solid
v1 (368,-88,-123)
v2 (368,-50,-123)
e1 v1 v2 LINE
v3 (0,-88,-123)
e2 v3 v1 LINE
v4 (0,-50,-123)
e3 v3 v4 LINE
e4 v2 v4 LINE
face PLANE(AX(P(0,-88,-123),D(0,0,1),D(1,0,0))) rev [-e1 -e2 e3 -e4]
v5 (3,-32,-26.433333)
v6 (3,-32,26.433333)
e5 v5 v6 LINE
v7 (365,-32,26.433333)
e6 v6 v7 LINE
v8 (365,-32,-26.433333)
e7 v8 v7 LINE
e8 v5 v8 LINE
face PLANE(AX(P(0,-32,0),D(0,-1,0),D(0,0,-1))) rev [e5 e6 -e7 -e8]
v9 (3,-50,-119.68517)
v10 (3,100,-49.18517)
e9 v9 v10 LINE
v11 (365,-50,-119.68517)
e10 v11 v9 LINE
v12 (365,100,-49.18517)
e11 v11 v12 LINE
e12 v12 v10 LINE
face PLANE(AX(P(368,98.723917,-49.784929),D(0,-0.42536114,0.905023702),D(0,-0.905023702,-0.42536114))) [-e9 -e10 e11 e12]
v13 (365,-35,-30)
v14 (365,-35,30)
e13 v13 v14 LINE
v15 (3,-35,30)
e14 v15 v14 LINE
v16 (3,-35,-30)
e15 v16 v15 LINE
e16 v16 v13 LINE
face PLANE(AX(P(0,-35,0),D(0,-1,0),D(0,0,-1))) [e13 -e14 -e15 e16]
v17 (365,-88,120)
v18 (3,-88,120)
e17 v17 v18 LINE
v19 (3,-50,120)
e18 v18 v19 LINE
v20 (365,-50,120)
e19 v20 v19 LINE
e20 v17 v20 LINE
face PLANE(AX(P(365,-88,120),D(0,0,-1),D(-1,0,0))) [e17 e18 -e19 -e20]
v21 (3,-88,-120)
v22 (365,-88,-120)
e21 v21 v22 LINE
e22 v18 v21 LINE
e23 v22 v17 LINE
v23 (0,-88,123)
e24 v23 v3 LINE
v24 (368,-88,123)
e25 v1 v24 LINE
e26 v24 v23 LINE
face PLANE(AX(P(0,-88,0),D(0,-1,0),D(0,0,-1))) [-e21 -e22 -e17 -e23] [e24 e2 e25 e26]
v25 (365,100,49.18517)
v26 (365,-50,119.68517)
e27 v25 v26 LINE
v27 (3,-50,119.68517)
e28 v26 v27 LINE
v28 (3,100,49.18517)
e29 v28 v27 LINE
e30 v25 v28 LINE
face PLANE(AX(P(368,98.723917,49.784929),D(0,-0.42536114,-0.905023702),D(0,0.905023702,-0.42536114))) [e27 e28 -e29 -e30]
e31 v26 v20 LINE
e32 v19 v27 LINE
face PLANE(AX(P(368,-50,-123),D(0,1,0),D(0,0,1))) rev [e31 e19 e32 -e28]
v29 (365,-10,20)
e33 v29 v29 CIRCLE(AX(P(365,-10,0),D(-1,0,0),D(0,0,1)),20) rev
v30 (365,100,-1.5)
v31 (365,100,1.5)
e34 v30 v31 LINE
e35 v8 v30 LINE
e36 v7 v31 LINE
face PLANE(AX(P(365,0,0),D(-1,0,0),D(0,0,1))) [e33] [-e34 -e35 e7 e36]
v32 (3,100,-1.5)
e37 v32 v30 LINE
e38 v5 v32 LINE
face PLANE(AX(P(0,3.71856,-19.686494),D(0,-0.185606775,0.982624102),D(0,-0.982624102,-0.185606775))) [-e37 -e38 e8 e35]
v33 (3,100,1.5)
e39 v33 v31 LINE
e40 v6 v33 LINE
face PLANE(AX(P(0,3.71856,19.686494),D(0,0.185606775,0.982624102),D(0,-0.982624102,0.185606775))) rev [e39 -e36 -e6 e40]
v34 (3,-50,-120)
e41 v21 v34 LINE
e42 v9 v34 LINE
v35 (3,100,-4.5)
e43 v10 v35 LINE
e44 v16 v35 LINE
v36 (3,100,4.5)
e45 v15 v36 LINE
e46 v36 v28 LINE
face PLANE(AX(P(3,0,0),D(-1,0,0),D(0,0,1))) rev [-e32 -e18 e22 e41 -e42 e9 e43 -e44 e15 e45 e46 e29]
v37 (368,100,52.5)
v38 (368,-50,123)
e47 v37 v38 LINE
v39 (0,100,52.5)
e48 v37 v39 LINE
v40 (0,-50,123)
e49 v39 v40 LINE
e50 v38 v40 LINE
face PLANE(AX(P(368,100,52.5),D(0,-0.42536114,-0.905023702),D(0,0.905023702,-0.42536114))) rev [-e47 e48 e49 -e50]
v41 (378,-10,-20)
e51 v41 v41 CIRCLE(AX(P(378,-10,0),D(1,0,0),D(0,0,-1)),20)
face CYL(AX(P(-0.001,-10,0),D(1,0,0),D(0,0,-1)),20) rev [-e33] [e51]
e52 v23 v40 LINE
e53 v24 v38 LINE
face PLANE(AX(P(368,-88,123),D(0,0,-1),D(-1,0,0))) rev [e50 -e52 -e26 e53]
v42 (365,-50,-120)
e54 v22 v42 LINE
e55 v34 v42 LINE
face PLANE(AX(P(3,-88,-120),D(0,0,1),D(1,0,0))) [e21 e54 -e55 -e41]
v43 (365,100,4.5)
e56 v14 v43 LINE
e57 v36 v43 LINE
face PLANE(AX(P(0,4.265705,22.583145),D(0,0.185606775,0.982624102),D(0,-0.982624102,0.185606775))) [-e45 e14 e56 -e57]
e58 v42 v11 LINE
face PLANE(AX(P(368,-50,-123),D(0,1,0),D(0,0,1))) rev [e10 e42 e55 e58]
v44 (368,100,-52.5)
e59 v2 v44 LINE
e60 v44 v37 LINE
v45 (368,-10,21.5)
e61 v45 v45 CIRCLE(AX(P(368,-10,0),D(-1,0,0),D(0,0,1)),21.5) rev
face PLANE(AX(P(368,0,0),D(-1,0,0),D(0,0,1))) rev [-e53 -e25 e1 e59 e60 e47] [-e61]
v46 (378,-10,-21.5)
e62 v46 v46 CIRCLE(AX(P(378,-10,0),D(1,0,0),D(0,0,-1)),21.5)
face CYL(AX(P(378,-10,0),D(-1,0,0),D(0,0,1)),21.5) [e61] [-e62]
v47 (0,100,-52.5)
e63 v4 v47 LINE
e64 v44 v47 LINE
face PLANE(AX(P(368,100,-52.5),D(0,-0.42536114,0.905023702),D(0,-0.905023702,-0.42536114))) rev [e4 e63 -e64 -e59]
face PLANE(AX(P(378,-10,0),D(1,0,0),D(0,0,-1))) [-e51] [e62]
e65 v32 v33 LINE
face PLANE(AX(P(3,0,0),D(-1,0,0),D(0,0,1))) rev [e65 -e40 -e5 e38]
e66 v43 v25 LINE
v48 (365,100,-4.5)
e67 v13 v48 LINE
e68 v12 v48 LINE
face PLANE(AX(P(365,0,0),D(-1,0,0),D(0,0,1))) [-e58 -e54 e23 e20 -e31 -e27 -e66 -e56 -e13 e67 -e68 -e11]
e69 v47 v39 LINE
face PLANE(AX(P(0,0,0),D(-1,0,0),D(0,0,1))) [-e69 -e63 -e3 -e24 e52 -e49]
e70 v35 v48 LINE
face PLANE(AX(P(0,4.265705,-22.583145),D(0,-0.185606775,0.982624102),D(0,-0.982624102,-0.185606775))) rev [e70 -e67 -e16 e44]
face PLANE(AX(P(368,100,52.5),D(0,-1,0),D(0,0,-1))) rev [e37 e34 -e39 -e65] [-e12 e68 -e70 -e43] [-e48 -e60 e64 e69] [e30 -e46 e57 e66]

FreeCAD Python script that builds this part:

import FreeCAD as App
import Part
import Sketcher
from FreeCAD import Vector
Q = App.Units.Quantity


def faces_at(feature, points):
    """Names of the faces that lie closest to the given points."""
    faces = feature.Shape.Faces
    near = lambda p: min(range(len(faces)), key=lambda i: faces[i].distToShape(Part.Vertex(*p))[0])
    return sorted({f"Face{near(p) + 1}" for p in points})

doc = App.newDocument("Part")
body = doc.addObject("PartDesign::Body", "Body")

sketch1 = body.newObject("Sketcher::SketchObject", "Sketch")
sketch1.AttachmentSupport = (doc.getObject("YZ_Plane"), [""])
sketch1.MapMode = "FlatFace"
sketch1.addGeometry(Part.LineSegment(Vector(-50, 123, 0), Vector(-50, -123, 0)), False)
sketch1.addGeometry(Part.LineSegment(Vector(-50, -123, 0), Vector(100, -52, 0)), False)
sketch1.addGeometry(Part.LineSegment(Vector(100, -52, 0), Vector(100, 52, 0)), False)
sketch1.addGeometry(Part.LineSegment(Vector(100, 52, 0), Vector(-50, 123, 0)), False)
sketch1.addConstraint(Sketcher.Constraint("Coincident", 0, 2, 1, 1))
sketch1.addConstraint(Sketcher.Constraint("Coincident", 1, 2, 2, 1))
sketch1.addConstraint(Sketcher.Constraint("Coincident", 2, 2, 3, 1))
sketch1.addConstraint(Sketcher.Constraint("Coincident", 3, 2, 0, 1))
sketch1.addConstraint(Sketcher.Constraint("Vertical", 0))
sketch1.addConstraint(Sketcher.Constraint("Vertical", 2))
sketch1.addConstraint(Sketcher.Constraint("Equal", 1, 3))
sketch1.addConstraint(Sketcher.Constraint("DistanceY", 0, 2, 0, 1, Q("246 mm")))
sketch1.addConstraint(Sketcher.Constraint("DistanceY", 2, 1, 2, 2, Q("105 mm")))
sketch1.addConstraint(Sketcher.Constraint("DistanceX", 0, 2, -1, 1, Q("50 mm")))
sketch1.addConstraint(Sketcher.Constraint("DistanceY", 0, 2, -1, 1, Q("123 mm")))
sketch1.addConstraint(Sketcher.Constraint("DistanceX", -1, 1, 1, 2, Q("100 mm")))
pad1 = body.newObject("PartDesign::Pad", "Pad")
pad1.Profile = sketch1
pad1.Length = 368
doc.recompute()

thickness = body.newObject("PartDesign::Thickness", "Thickness")
thickness.Base = (pad1, faces_at(pad1, [(184, 100, 0), (184, -50, 0)]))
thickness.Value = 3
thickness.Reversed = True
thickness.Join = "Intersection"

sketch2 = body.newObject("Sketcher::SketchObject", "Sketch001")
sketch2.AttachmentSupport = (doc.getObject("YZ_Plane"), [""])
sketch2.MapMode = "FlatFace"
sketch2.AttachmentOffset = App.Placement(Vector(0, 0, 368), App.Rotation())
sketch2.addGeometry(Part.LineSegment(Vector(100, 4.5, 0), Vector(-35, 30, 0)), False)
sketch2.addGeometry(Part.LineSegment(Vector(-35, 30, 0), Vector(-35, -30, 0)), False)
sketch2.addGeometry(Part.LineSegment(Vector(-35, -30, 0), Vector(100, -4.5, 0)), False)
sketch2.addGeometry(Part.LineSegment(Vector(100, -4.5, 0), Vector(100, -1.5, 0)), False)
sketch2.addGeometry(Part.LineSegment(Vector(100, -1.5, 0), Vector(-32, -26.4, 0)), False)
sketch2.addGeometry(Part.LineSegment(Vector(-32, -26.4, 0), Vector(-32, 26.4, 0)), False)
sketch2.addGeometry(Part.LineSegment(Vector(-32, 26.4, 0), Vector(100, 1.5, 0)), False)
sketch2.addGeometry(Part.LineSegment(Vector(100, 1.5, 0), Vector(100, 4.5, 0)), False)
sketch2.addConstraint(Sketcher.Constraint("Coincident", 0, 2, 1, 1))
sketch2.addConstraint(Sketcher.Constraint("Coincident", 1, 2, 2, 1))
sketch2.addConstraint(Sketcher.Constraint("Coincident", 2, 2, 3, 1))
sketch2.addConstraint(Sketcher.Constraint("Coincident", 3, 2, 4, 1))
sketch2.addConstraint(Sketcher.Constraint("Coincident", 4, 2, 5, 1))
sketch2.addConstraint(Sketcher.Constraint("Coincident", 5, 2, 6, 1))
sketch2.addConstraint(Sketcher.Constraint("Coincident", 6, 2, 7, 1))
sketch2.addConstraint(Sketcher.Constraint("Coincident", 7, 2, 0, 1))
sketch2.addConstraint(Sketcher.Constraint("Vertical", 1))
sketch2.addConstraint(Sketcher.Constraint("Vertical", 3))
sketch2.addConstraint(Sketcher.Constraint("Vertical", 5))
sketch2.addConstraint(Sketcher.Constraint("Vertical", 7))
sketch2.addConstraint(Sketcher.Constraint("Symmetric", 3, 2, 6, 2, -1))
sketch2.addConstraint(Sketcher.Constraint("Parallel", 2, 4))
sketch2.addConstraint(Sketcher.Constraint("Parallel", 0, 6))
sketch2.addConstraint(Sketcher.Constraint("Equal", 3, 7))
sketch2.addConstraint(Sketcher.Constraint("Equal", 0, 2))
sketch2.addConstraint(Sketcher.Constraint("DistanceY", 1, 2, 1, 1, Q("60 mm")))
sketch2.addConstraint(Sketcher.Constraint("DistanceY", 3, 1, 3, 2, Q("3 mm")))
sketch2.addConstraint(Sketcher.Constraint("DistanceX", 0, 2, -1, 1, Q("35 mm")))
sketch2.addConstraint(Sketcher.Constraint("DistanceX", -1, 1, 2, 2, Q("100 mm")))
sketch2.addConstraint(Sketcher.Constraint("DistanceX", 4, 2, -1, 1, Q("32 mm")))
sketch2.addConstraint(Sketcher.Constraint("DistanceY", 3, 2, 6, 2, Q("3 mm")))
pad2 = body.newObject("PartDesign::Pad", "Pad001")
pad2.Profile = sketch2
pad2.Length = 365
pad2.Reversed = True

sketch3 = body.newObject("Sketcher::SketchObject", "Sketch002")
sketch3.AttachmentSupport = (doc.getObject("YZ_Plane"), [""])
sketch3.MapMode = "FlatFace"
sketch3.AttachmentOffset = App.Placement(Vector(0, 0, 368), App.Rotation())
sketch3.addGeometry(Part.Circle(Vector(-10, 0, 0), Vector(0, 0, 1), 20), False)
sketch3.addConstraint(Sketcher.Constraint("PointOnObject", 0, 3, -1))
sketch3.addConstraint(Sketcher.Constraint("Diameter", 0, Q("40 mm")))
sketch3.addConstraint(Sketcher.Constraint("DistanceX", 0, 3, -1, 1, Q("10 mm")))
pocket1 = body.newObject("PartDesign::Pocket", "Pocket")
pocket1.Profile = sketch3
pocket1.Type = "UpToFirst"

sketch4 = body.newObject("Sketcher::SketchObject", "Sketch003")
sketch4.AttachmentSupport = (doc.getObject("YZ_Plane"), [""])
sketch4.MapMode = "FlatFace"
sketch4.AttachmentOffset = App.Placement(Vector(0, 0, 378), App.Rotation())
sketch4.addGeometry(Part.Circle(Vector(-10, 0, 0), Vector(0, 0, 1), 22), False)
sketch4.addGeometry(Part.Circle(Vector(-10, 0, 0), Vector(0, 0, 1), 20), False)
sketch4.addConstraint(Sketcher.Constraint("Coincident", 1, 3, 0, 3))
sketch4.addConstraint(Sketcher.Constraint("PointOnObject", 0, 3, -1))
sketch4.addConstraint(Sketcher.Constraint("Diameter", 0, Q("43 mm")))
sketch4.addConstraint(Sketcher.Constraint("Diameter", 1, Q("40 mm")))
sketch4.addConstraint(Sketcher.Constraint("DistanceX", 0, 3, -1, 1, Q("10 mm")))
pad3 = body.newObject("PartDesign::Pad", "Pad002")
pad3.Profile = sketch4
pad3.Length = 10
pad3.Reversed = True

sketch5 = body.newObject("Sketcher::SketchObject", "Sketch004")
sketch5.AttachmentSupport = (doc.getObject("XZ_Plane"), [""])
sketch5.MapMode = "FlatFace"
sketch5.AttachmentOffset = App.Placement(Vector(0, 0, 50), App.Rotation())
sketch5.addGeometry(Part.LineSegment(Vector(0, 123, 0), Vector(0, -123, 0)), False)
sketch5.addGeometry(Part.LineSegment(Vector(0, -123, 0), Vector(368, -123, 0)), False)
sketch5.addGeometry(Part.LineSegment(Vector(368, -123, 0), Vector(368, 123, 0)), False)
sketch5.addGeometry(Part.LineSegment(Vector(368, 123, 0), Vector(0, 123, 0)), False)
sketch5.addGeometry(Part.LineSegment(Vector(365, -120, 0), Vector(3, -120, 0)), False)
sketch5.addGeometry(Part.LineSegment(Vector(3, -120, 0), Vector(3, 120, 0)), False)
sketch5.addGeometry(Part.LineSegment(Vector(3, 120, 0), Vector(365, 120, 0)), False)
sketch5.addGeometry(Part.LineSegment(Vector(365, 120, 0), Vector(365, -120, 0)), False)
sketch5.addConstraint(Sketcher.Constraint("Coincident", 0, 2, 1, 1))
sketch5.addConstraint(Sketcher.Constraint("Coincident", 1, 2, 2, 1))
sketch5.addConstraint(Sketcher.Constraint("Coincident", 2, 2, 3, 1))
sketch5.addConstraint(Sketcher.Constraint("Coincident", 3, 2, 0, 1))
sketch5.addConstraint(Sketcher.Constraint("Coincident", 4, 2, 5, 1))
sketch5.addConstraint(Sketcher.Constraint("Coincident", 5, 2, 6, 1))
sketch5.addConstraint(Sketcher.Constraint("Coincident", 6, 2, 7, 1))
sketch5.addConstraint(Sketcher.Constraint("Coincident", 7, 2, 4, 1))
sketch5.addConstraint(Sketcher.Constraint("Vertical", 0))
sketch5.addConstraint(Sketcher.Constraint("Horizontal", 1))
sketch5.addConstraint(Sketcher.Constraint("Vertical", 2))
sketch5.addConstraint(Sketcher.Constraint("Horizontal", 3))
sketch5.addConstraint(Sketcher.Constraint("Horizontal", 4))
sketch5.addConstraint(Sketcher.Constraint("Vertical", 5))
sketch5.addConstraint(Sketcher.Constraint("Horizontal", 6))
sketch5.addConstraint(Sketcher.Constraint("Vertical", 7))
sketch5.addConstraint(Sketcher.Constraint("Symmetric", 0, 2, 3, 2, -1, 1))
sketch5.addConstraint(Sketcher.Constraint("DistanceX", 1, 1, 1, 2, Q("368 mm")))
sketch5.addConstraint(Sketcher.Constraint("DistanceX", 4, 2, 4, 1, Q("362 mm")))
sketch5.addConstraint(Sketcher.Constraint("DistanceY", 0, 2, 0, 1, Q("246 mm")))
sketch5.addConstraint(Sketcher.Constraint("DistanceY", 5, 1, 5, 2, Q("240 mm")))
sketch5.addConstraint(Sketcher.Constraint("DistanceX", -1, 1, 4, 2, Q("3 mm")))
sketch5.addConstraint(Sketcher.Constraint("DistanceY", 4, 2, -1, 1, Q("120 mm")))
pad4 = body.newObject("PartDesign::Pad", "Pad003")
pad4.Profile = sketch5
pad4.Length = 38

doc.recompute()
